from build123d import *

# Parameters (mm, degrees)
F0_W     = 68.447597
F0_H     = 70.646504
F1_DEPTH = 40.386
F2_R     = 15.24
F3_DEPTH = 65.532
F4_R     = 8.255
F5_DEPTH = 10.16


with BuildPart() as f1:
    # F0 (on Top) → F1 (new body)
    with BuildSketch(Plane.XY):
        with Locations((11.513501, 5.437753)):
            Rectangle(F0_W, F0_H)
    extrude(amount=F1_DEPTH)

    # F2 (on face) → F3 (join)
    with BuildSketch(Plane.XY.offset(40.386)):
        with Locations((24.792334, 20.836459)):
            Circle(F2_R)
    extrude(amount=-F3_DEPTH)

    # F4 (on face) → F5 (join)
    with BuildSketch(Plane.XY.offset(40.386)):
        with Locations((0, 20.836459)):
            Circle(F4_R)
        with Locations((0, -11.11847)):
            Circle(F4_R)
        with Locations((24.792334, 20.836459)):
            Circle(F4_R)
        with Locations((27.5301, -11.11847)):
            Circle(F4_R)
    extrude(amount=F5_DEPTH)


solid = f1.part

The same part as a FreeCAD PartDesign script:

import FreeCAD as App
import Part
import Sketcher

V = App.Vector
Q = App.Units.Quantity


def add_polygon(sketch, points):
    """Adds a closed chain of lines whose ends are joined by coincident constraints."""
    first, n = sketch.GeometryCount, len(points)
    for a, b in zip(points, points[1:] + points[:1]):
        sketch.addGeometry(Part.LineSegment(App.Vector(*a, 0), App.Vector(*b, 0)), False)
    for i in range(n):
        sketch.addConstraint(Sketcher.Constraint("Coincident", first + i, 2, first + (i + 1) % n, 1))

doc = App.newDocument("Part")
body = doc.addObject("PartDesign::Body", "Body")

# Sketch on XY plane
sketch1 = body.newObject("Sketcher::SketchObject", "Sketch")
sketch1.AttachmentSupport = (doc.getObject("XY_Plane"), [""])
sketch1.MapMode = "FlatFace"
add_polygon(sketch1, [(-23, 41), (-23, -30), (46, -30), (46, 41)])  # lines 0-3
sketch1.addConstraint(Sketcher.Constraint("Vertical", 0))
sketch1.addConstraint(Sketcher.Constraint("Horizontal", 1))
sketch1.addConstraint(Sketcher.Constraint("Vertical", 2))
sketch1.addConstraint(Sketcher.Constraint("Horizontal", 3))
sketch1.addConstraint(Sketcher.Constraint("DistanceY", 0, 2, -1, 1, 29.885499))
sketch1.addConstraint(Sketcher.Constraint("DistanceX", -1, 1, 1, 2, 45.737299))
sketch1.addConstraint(Sketcher.Constraint("DistanceX", 1, 1, 1, 2, 68.447597))
sketch1.addConstraint(Sketcher.Constraint("DistanceY", 0, 2, 0, 1, 70.646504))
pad1 = body.newObject("PartDesign::Pad", "Pad")
pad1.Profile = sketch1
pad1.Length = Q("1.59 in")

# Sketch on XY plane
sketch2 = body.newObject("Sketcher::SketchObject", "Sketch001")
sketch2.AttachmentSupport = (doc.getObject("XY_Plane"), [""])
sketch2.MapMode = "FlatFace"
sketch2.AttachmentOffset = App.Placement(V(0, 0, 1.59 * 25.4), App.Rotation())
sketch2.addGeometry(Part.Circle(V(25, 21, 0), V(0, 0, 1), 15), False)
sketch2.addConstraint(Sketcher.Constraint("Diameter", 0, Q("1.2 in")))
sketch2.addConstraint(Sketcher.Constraint("DistanceY", -1, 1, 0, 3, 20.836459))
sketch2.addConstraint(Sketcher.Constraint("DistanceX", -1, 1, 0, 3, 24.792334))
pad2 = body.newObject("PartDesign::Pad", "Pad001")
pad2.Profile = sketch2
pad2.Length = Q("2.58 in")
pad2.Reversed = True

# Sketch on XY plane
sketch3 = body.newObject("Sketcher::SketchObject", "Sketch002")
sketch3.AttachmentSupport = (doc.getObject("XY_Plane"), [""])
sketch3.MapMode = "FlatFace"
sketch3.AttachmentOffset = App.Placement(V(0, 0, 1.59 * 25.4), App.Rotation())
sketch3.addGeometry(Part.Circle(V(0, 21, 0), V(0, 0, 1), 8), False)
sketch3.addGeometry(Part.Circle(V(0, -11, 0), V(0, 0, 1), 8), False)
sketch3.addGeometry(Part.Circle(V(25, 21, 0), V(0, 0, 1), 8), False)
sketch3.addGeometry(Part.Circle(V(28, -11, 0), V(0, 0, 1), 8), False)
sketch3.addConstraint(Sketcher.Constraint("Equal", 0, 1))
sketch3.addConstraint(Sketcher.Constraint("Equal", 1, 2))
sketch3.addConstraint(Sketcher.Constraint("Equal", 2, 3))
sketch3.addConstraint(Sketcher.Constraint("PointOnObject", 0, 3, -2))
sketch3.addConstraint(Sketcher.Constraint("PointOnObject", 1, 3, -2))
sketch3.addConstraint(Sketcher.Constraint("Horizontal", 0, 3, 2, 3))
sketch3.addConstraint(Sketcher.Constraint("Horizontal", 1, 3, 3, 3))
sketch3.addConstraint(Sketcher.Constraint("Diameter", 0, Q("0.65 in")))
sketch3.addConstraint(Sketcher.Constraint("DistanceX", -1, 1, 3, 3, 27.5301))
sketch3.addConstraint(Sketcher.Constraint("DistanceY", -1, 1, 0, 3, 20.836459))
sketch3.addConstraint(Sketcher.Constraint("DistanceY", 1, 3, -1, 1, 11.11847))
sketch3.addConstraint(Sketcher.Constraint("DistanceX", -1, 1, 2, 3, 24.792334))
pad3 = body.newObject("PartDesign::Pad", "Pad002")
pad3.Profile = sketch3
pad3.Length = Q("0.4 in")

doc.recompute()
